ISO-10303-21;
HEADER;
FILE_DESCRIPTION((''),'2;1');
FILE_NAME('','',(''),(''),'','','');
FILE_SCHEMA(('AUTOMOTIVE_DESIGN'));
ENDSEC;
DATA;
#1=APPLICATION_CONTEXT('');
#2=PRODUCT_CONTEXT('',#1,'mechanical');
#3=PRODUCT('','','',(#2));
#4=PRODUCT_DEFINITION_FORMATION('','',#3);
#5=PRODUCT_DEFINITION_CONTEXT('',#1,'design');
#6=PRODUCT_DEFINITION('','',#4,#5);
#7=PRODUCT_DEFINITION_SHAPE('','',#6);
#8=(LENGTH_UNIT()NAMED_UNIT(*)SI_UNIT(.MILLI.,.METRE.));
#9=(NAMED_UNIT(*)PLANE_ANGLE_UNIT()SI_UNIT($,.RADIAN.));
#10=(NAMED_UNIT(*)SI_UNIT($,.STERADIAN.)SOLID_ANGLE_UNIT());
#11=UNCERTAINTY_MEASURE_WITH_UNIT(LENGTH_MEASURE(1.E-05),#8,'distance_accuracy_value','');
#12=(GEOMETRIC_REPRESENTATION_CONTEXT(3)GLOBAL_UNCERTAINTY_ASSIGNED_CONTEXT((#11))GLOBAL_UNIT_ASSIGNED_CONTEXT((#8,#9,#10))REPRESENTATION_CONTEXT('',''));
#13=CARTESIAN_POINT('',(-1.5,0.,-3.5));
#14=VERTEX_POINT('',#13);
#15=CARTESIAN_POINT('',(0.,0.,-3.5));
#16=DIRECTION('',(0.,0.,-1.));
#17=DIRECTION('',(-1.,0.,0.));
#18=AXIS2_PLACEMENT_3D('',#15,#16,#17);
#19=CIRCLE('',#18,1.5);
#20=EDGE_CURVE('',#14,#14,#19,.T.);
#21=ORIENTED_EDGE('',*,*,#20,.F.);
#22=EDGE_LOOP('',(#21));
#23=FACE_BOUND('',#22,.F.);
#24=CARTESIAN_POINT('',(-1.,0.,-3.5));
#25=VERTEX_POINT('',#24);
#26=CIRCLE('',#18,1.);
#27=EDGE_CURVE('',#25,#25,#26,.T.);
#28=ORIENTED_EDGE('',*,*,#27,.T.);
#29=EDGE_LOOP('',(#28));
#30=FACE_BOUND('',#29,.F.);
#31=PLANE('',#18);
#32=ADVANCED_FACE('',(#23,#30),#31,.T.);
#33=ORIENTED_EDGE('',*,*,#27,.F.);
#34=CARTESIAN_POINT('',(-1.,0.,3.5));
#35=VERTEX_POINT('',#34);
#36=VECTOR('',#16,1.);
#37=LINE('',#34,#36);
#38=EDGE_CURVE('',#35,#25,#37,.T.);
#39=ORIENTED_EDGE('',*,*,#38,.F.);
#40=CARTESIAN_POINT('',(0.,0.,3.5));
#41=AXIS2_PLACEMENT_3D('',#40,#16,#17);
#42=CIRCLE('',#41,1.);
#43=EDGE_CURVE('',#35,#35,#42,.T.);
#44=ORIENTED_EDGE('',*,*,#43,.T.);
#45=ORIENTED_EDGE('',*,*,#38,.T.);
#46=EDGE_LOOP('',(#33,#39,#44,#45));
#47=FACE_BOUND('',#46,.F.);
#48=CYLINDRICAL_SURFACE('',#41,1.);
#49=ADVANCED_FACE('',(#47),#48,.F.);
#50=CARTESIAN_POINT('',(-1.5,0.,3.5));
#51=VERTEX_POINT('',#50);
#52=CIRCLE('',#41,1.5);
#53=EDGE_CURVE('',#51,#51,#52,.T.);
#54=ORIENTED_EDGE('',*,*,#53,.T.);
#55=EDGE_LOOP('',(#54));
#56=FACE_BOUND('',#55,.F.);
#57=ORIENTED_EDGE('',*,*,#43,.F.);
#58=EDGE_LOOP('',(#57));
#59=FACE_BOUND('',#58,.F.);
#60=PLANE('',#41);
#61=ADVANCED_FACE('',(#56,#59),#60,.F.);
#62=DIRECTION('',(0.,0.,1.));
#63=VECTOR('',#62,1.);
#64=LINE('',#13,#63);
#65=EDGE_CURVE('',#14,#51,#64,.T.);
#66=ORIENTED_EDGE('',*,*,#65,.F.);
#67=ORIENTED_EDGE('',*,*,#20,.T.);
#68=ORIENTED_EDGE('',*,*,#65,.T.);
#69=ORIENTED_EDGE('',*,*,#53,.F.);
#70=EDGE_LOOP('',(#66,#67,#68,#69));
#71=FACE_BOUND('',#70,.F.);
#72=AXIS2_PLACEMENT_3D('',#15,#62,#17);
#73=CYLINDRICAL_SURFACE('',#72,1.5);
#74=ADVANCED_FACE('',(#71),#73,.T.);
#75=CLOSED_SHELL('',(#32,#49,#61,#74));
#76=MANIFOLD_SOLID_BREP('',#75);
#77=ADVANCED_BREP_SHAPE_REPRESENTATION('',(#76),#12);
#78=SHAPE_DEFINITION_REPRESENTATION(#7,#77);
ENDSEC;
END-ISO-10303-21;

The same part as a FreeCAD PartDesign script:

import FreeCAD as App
import Part
import Sketcher
from FreeCAD import Vector

doc = App.newDocument("Part")
params = doc.addObject("Spreadsheet::Sheet", "Params")
for row, (alias, value) in enumerate([
    ("sketch1_height", "7 mm"),
    ("revolution_angle", "360 deg"),
], start=1):
    params.set(f"A{row}", alias)
    params.set(f"B{row}", "=" + value)
    params.setAlias(f"B{row}", alias)

body = doc.addObject("PartDesign::Body", "Body")

sketch1 = body.newObject("Sketcher::SketchObject", "Sketch")
sketch1.AttachmentSupport = (doc.getObject("XZ_Plane"), [""])
sketch1.MapMode = "FlatFace"
sketch1.addGeometry(Part.LineSegment(Vector(-1.5, 3.5, 0), Vector(-1, 3.5, 0)), False)
sketch1.addGeometry(Part.LineSegment(Vector(-1, 3.5, 0), Vector(-1, -3.5, 0)), False)
sketch1.addGeometry(Part.LineSegment(Vector(-1, -3.5, 0), Vector(-1.5, -3.5, 0)), False)
sketch1.addGeometry(Part.LineSegment(Vector(-1.5, -3.5, 0), Vector(-1.5, 3.5, 0)), False)
sketch1.addConstraint(Sketcher.Constraint("Coincident", 0, 2, 1, 1))
sketch1.addConstraint(Sketcher.Constraint("Coincident", 1, 2, 2, 1))
sketch1.addConstraint(Sketcher.Constraint("Coincident", 2, 2, 3, 1))
sketch1.addConstraint(Sketcher.Constraint("Coincident", 3, 2, 0, 1))
sketch1.addConstraint(Sketcher.Constraint("Horizontal", 0))
sketch1.addConstraint(Sketcher.Constraint("Vertical", 1))
sketch1.addConstraint(Sketcher.Constraint("Horizontal", 2))
sketch1.addConstraint(Sketcher.Constraint("Vertical", 3))
sketch1.addConstraint(Sketcher.Constraint("DistanceY", 1, 2, 1, 1, 7.0))
sketch1.addConstraint(Sketcher.Constraint("DistanceX", 0, 2, -1, 1, 1.0))
sketch1.addConstraint(Sketcher.Constraint("DistanceX", 2, 2, -1, 1, 1.5))
sketch1.addConstraint(Sketcher.Constraint("DistanceY", -1, 1, 0, 2, 3.5))
sketch1.setExpression("Constraints[8]", "Params.sketch1_height")
revolution = body.newObject("PartDesign::Revolution", "Revolution")
revolution.Profile = sketch1
revolution.ReferenceAxis = (sketch1, ["V_Axis"])
revolution.setExpression("Angle", "Params.revolution_angle")

doc.recompute()
